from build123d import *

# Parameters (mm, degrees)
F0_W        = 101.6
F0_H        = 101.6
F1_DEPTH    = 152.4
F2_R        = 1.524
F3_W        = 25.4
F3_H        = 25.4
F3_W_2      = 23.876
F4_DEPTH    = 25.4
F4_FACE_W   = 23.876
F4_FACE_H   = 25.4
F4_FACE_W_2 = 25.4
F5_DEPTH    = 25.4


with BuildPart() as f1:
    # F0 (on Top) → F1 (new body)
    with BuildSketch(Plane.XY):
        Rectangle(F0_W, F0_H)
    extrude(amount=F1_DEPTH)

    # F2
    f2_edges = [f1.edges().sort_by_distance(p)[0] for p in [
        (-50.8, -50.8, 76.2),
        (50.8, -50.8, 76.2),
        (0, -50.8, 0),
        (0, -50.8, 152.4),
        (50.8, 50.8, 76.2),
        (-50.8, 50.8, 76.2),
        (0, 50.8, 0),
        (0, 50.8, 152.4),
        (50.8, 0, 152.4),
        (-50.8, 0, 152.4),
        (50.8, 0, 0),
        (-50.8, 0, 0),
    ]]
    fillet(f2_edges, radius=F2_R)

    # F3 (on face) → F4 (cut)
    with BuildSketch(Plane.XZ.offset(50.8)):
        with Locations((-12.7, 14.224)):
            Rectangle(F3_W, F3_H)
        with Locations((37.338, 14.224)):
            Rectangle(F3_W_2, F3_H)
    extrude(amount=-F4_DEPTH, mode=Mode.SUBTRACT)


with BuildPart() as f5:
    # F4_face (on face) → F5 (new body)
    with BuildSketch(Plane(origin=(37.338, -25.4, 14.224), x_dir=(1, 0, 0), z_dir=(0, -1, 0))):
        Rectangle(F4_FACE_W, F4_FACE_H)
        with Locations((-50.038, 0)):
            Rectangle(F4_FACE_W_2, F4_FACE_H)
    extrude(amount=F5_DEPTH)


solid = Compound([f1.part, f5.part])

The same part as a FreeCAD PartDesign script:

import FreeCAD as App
import Part
import Sketcher
from FreeCAD import Vector
Q = App.Units.Quantity

doc = App.newDocument("Part")
body = doc.addObject("PartDesign::Body", "Body")

# Sketch on XY plane
sketch1 = doc.addObject("Sketcher::SketchObject", "Sketch")
body.addObject(sketch1)
sketch1.AttachmentSupport = (doc.XY_Plane, [""])
sketch1.MapMode = "FlatFace"
sketch1.addGeometry(Part.LineSegment(Vector(-50.8, 50.8, 0), Vector(-50.8, -50.8, 0)), False)
sketch1.addGeometry(Part.LineSegment(Vector(-50.8, -50.8, 0), Vector(50.8, -50.8, 0)), False)
sketch1.addGeometry(Part.LineSegment(Vector(50.8, -50.8, 0), Vector(50.8, 50.8, 0)), False)
sketch1.addGeometry(Part.LineSegment(Vector(50.8, 50.8, 0), Vector(-50.8, 50.8, 0)), False)
sketch1.addConstraint(Sketcher.Constraint("Coincident", 0, 2, 1, 1))
sketch1.addConstraint(Sketcher.Constraint("Coincident", 1, 2, 2, 1))
sketch1.addConstraint(Sketcher.Constraint("Coincident", 2, 2, 3, 1))
sketch1.addConstraint(Sketcher.Constraint("Coincident", 3, 2, 0, 1))
sketch1.addConstraint(Sketcher.Constraint("Vertical", 0))
sketch1.addConstraint(Sketcher.Constraint("Horizontal", 1))
sketch1.addConstraint(Sketcher.Constraint("Vertical", 2))
sketch1.addConstraint(Sketcher.Constraint("Horizontal", 3))
sketch1.addConstraint(Sketcher.Constraint("Symmetric", 0, 2, 2, 2, -1, 1))
sketch1.addConstraint(Sketcher.Constraint("Equal", 3, 0))
sketch1.addConstraint(Sketcher.Constraint("DistanceX", 1, 1, 1, 2, Q("4 in")))
pad1 = doc.addObject("PartDesign::Pad", "Pad")
body.addObject(pad1)
pad1.Profile = sketch1
pad1.Length = Q("6 in")
doc.recompute()

fillet = doc.addObject("PartDesign::Fillet", "Fillet")
body.addObject(fillet)
fillet.Base = (pad1, ["Edge1"])
fillet.UseAllEdges = True
fillet.Radius = Q("0.06 in")

# Sketch on XZ plane
sketch2 = doc.addObject("Sketcher::SketchObject", "Sketch001")
body.addObject(sketch2)
sketch2.AttachmentSupport = (doc.XZ_Plane, [""])
sketch2.MapMode = "FlatFace"
sketch2.AttachmentOffset = App.Placement(Vector(0, 0, 2 * 25.4), App.Rotation())
sketch2.addGeometry(Part.LineSegment(Vector(-25.4, 26.924, 0), Vector(-25.4, 1.524, 0)), False)
sketch2.addGeometry(Part.LineSegment(Vector(-25.4, 1.524, 0), Vector(0, 1.524, 0)), False)
sketch2.addGeometry(Part.LineSegment(Vector(0, 1.524, 0), Vector(0, 26.924, 0)), False)
sketch2.addGeometry(Part.LineSegment(Vector(0, 26.924, 0), Vector(-25.4, 26.924, 0)), False)
sketch2.addGeometry(Part.LineSegment(Vector(25.4, 26.924, 0), Vector(25.4, 1.524, 0)), False)
sketch2.addGeometry(Part.LineSegment(Vector(25.4, 1.524, 0), Vector(49.276, 1.524, 0)), False)
sketch2.addGeometry(Part.LineSegment(Vector(49.276, 1.524, 0), Vector(49.276, 26.924, 0)), False)
sketch2.addGeometry(Part.LineSegment(Vector(49.276, 26.924, 0), Vector(25.4, 26.924, 0)), False)
sketch2.addConstraint(Sketcher.Constraint("Coincident", 0, 2, 1, 1))
sketch2.addConstraint(Sketcher.Constraint("Coincident", 1, 2, 2, 1))
sketch2.addConstraint(Sketcher.Constraint("Coincident", 2, 2, 3, 1))
sketch2.addConstraint(Sketcher.Constraint("Coincident", 3, 2, 0, 1))
sketch2.addConstraint(Sketcher.Constraint("Coincident", 4, 2, 5, 1))
sketch2.addConstraint(Sketcher.Constraint("Coincident", 5, 2, 6, 1))
sketch2.addConstraint(Sketcher.Constraint("Coincident", 6, 2, 7, 1))
sketch2.addConstraint(Sketcher.Constraint("Coincident", 7, 2, 4, 1))
sketch2.addConstraint(Sketcher.Constraint("Vertical", 0))
sketch2.addConstraint(Sketcher.Constraint("Horizontal", 1))
sketch2.addConstraint(Sketcher.Constraint("Vertical", 2))
sketch2.addConstraint(Sketcher.Constraint("Horizontal", 3))
sketch2.addConstraint(Sketcher.Constraint("Vertical", 4))
sketch2.addConstraint(Sketcher.Constraint("Horizontal", 5))
sketch2.addConstraint(Sketcher.Constraint("Vertical", 6))
sketch2.addConstraint(Sketcher.Constraint("Horizontal", 7))
sketch2.addConstraint(Sketcher.Constraint("Symmetric", 0, 2, 4, 2, -2))
sketch2.addConstraint(Sketcher.Constraint("PointOnObject", 1, 2, -2))
sketch2.addConstraint(Sketcher.Constraint("Horizontal", 3, 2, 6, 2))
sketch2.addConstraint(Sketcher.Constraint("Equal", 3, 0))
sketch2.addConstraint(Sketcher.Constraint("DistanceX", 1, 1, 1, 2, Q("1 in")))
sketch2.addConstraint(Sketcher.Constraint("DistanceX", 5, 1, 5, 2, Q("0.94 in")))
sketch2.addConstraint(Sketcher.Constraint("DistanceY", -1, 1, 0, 2, Q("0.06 in")))
pocket1 = doc.addObject("PartDesign::Pocket", "Pocket")
body.addObject(pocket1)
pocket1.Profile = sketch2
pocket1.Length = Q("1 in")
body2 = doc.addObject("PartDesign::Body", "Body001")
body2.AllowCompound = True

# Sketch on XZ plane
sketch3 = doc.addObject("Sketcher::SketchObject", "Sketch002")
body2.addObject(sketch3)
sketch3.AttachmentSupport = (doc.getObject("XZ_Plane001"), [""])
sketch3.MapMode = "FlatFace"
sketch3.AttachmentOffset = App.Placement(Vector(0, 0, 1 * 25.4), App.Rotation())
sketch3.addGeometry(Part.LineSegment(Vector(25.4, 26.924, 0), Vector(25.4, 1.524, 0)), False)
sketch3.addGeometry(Part.LineSegment(Vector(25.4, 1.524, 0), Vector(49.276, 1.524, 0)), False)
sketch3.addGeometry(Part.LineSegment(Vector(49.276, 1.524, 0), Vector(49.276, 26.924, 0)), False)
sketch3.addGeometry(Part.LineSegment(Vector(49.276, 26.924, 0), Vector(25.4, 26.924, 0)), False)
sketch3.addGeometry(Part.LineSegment(Vector(-25.4, 26.924, 0), Vector(-25.4, 1.524, 0)), False)
sketch3.addGeometry(Part.LineSegment(Vector(-25.4, 1.524, 0), Vector(0, 1.524, 0)), False)
sketch3.addGeometry(Part.LineSegment(Vector(0, 1.524, 0), Vector(0, 26.924, 0)), False)
sketch3.addGeometry(Part.LineSegment(Vector(0, 26.924, 0), Vector(-25.4, 26.924, 0)), False)
sketch3.addConstraint(Sketcher.Constraint("Coincident", 0, 2, 1, 1))
sketch3.addConstraint(Sketcher.Constraint("Coincident", 1, 2, 2, 1))
sketch3.addConstraint(Sketcher.Constraint("Coincident", 2, 2, 3, 1))
sketch3.addConstraint(Sketcher.Constraint("Coincident", 3, 2, 0, 1))
sketch3.addConstraint(Sketcher.Constraint("Coincident", 4, 2, 5, 1))
sketch3.addConstraint(Sketcher.Constraint("Coincident", 5, 2, 6, 1))
sketch3.addConstraint(Sketcher.Constraint("Coincident", 6, 2, 7, 1))
sketch3.addConstraint(Sketcher.Constraint("Coincident", 7, 2, 4, 1))
sketch3.addConstraint(Sketcher.Constraint("Vertical", 0))
sketch3.addConstraint(Sketcher.Constraint("Horizontal", 1))
sketch3.addConstraint(Sketcher.Constraint("Vertical", 2))
sketch3.addConstraint(Sketcher.Constraint("Horizontal", 3))
sketch3.addConstraint(Sketcher.Constraint("Vertical", 4))
sketch3.addConstraint(Sketcher.Constraint("Horizontal", 5))
sketch3.addConstraint(Sketcher.Constraint("Vertical", 6))
sketch3.addConstraint(Sketcher.Constraint("Horizontal", 7))
sketch3.addConstraint(Sketcher.Constraint("Symmetric", 0, 2, 4, 2, -2))
sketch3.addConstraint(Sketcher.Constraint("PointOnObject", 5, 2, -2))
sketch3.addConstraint(Sketcher.Constraint("Horizontal", 3, 2, 6, 2))
sketch3.addConstraint(Sketcher.Constraint("Equal", 7, 0))
sketch3.addConstraint(Sketcher.Constraint("DistanceX", 5, 1, 5, 2, Q("1 in")))
sketch3.addConstraint(Sketcher.Constraint("DistanceX", 1, 1, 1, 2, Q("0.94 in")))
sketch3.addConstraint(Sketcher.Constraint("DistanceY", -1, 1, 0, 2, Q("0.06 in")))
pad2 = doc.addObject("PartDesign::Pad", "Pad001")
body2.addObject(pad2)
pad2.Profile = sketch3
pad2.Length = Q("1 in")

doc.recompute()
